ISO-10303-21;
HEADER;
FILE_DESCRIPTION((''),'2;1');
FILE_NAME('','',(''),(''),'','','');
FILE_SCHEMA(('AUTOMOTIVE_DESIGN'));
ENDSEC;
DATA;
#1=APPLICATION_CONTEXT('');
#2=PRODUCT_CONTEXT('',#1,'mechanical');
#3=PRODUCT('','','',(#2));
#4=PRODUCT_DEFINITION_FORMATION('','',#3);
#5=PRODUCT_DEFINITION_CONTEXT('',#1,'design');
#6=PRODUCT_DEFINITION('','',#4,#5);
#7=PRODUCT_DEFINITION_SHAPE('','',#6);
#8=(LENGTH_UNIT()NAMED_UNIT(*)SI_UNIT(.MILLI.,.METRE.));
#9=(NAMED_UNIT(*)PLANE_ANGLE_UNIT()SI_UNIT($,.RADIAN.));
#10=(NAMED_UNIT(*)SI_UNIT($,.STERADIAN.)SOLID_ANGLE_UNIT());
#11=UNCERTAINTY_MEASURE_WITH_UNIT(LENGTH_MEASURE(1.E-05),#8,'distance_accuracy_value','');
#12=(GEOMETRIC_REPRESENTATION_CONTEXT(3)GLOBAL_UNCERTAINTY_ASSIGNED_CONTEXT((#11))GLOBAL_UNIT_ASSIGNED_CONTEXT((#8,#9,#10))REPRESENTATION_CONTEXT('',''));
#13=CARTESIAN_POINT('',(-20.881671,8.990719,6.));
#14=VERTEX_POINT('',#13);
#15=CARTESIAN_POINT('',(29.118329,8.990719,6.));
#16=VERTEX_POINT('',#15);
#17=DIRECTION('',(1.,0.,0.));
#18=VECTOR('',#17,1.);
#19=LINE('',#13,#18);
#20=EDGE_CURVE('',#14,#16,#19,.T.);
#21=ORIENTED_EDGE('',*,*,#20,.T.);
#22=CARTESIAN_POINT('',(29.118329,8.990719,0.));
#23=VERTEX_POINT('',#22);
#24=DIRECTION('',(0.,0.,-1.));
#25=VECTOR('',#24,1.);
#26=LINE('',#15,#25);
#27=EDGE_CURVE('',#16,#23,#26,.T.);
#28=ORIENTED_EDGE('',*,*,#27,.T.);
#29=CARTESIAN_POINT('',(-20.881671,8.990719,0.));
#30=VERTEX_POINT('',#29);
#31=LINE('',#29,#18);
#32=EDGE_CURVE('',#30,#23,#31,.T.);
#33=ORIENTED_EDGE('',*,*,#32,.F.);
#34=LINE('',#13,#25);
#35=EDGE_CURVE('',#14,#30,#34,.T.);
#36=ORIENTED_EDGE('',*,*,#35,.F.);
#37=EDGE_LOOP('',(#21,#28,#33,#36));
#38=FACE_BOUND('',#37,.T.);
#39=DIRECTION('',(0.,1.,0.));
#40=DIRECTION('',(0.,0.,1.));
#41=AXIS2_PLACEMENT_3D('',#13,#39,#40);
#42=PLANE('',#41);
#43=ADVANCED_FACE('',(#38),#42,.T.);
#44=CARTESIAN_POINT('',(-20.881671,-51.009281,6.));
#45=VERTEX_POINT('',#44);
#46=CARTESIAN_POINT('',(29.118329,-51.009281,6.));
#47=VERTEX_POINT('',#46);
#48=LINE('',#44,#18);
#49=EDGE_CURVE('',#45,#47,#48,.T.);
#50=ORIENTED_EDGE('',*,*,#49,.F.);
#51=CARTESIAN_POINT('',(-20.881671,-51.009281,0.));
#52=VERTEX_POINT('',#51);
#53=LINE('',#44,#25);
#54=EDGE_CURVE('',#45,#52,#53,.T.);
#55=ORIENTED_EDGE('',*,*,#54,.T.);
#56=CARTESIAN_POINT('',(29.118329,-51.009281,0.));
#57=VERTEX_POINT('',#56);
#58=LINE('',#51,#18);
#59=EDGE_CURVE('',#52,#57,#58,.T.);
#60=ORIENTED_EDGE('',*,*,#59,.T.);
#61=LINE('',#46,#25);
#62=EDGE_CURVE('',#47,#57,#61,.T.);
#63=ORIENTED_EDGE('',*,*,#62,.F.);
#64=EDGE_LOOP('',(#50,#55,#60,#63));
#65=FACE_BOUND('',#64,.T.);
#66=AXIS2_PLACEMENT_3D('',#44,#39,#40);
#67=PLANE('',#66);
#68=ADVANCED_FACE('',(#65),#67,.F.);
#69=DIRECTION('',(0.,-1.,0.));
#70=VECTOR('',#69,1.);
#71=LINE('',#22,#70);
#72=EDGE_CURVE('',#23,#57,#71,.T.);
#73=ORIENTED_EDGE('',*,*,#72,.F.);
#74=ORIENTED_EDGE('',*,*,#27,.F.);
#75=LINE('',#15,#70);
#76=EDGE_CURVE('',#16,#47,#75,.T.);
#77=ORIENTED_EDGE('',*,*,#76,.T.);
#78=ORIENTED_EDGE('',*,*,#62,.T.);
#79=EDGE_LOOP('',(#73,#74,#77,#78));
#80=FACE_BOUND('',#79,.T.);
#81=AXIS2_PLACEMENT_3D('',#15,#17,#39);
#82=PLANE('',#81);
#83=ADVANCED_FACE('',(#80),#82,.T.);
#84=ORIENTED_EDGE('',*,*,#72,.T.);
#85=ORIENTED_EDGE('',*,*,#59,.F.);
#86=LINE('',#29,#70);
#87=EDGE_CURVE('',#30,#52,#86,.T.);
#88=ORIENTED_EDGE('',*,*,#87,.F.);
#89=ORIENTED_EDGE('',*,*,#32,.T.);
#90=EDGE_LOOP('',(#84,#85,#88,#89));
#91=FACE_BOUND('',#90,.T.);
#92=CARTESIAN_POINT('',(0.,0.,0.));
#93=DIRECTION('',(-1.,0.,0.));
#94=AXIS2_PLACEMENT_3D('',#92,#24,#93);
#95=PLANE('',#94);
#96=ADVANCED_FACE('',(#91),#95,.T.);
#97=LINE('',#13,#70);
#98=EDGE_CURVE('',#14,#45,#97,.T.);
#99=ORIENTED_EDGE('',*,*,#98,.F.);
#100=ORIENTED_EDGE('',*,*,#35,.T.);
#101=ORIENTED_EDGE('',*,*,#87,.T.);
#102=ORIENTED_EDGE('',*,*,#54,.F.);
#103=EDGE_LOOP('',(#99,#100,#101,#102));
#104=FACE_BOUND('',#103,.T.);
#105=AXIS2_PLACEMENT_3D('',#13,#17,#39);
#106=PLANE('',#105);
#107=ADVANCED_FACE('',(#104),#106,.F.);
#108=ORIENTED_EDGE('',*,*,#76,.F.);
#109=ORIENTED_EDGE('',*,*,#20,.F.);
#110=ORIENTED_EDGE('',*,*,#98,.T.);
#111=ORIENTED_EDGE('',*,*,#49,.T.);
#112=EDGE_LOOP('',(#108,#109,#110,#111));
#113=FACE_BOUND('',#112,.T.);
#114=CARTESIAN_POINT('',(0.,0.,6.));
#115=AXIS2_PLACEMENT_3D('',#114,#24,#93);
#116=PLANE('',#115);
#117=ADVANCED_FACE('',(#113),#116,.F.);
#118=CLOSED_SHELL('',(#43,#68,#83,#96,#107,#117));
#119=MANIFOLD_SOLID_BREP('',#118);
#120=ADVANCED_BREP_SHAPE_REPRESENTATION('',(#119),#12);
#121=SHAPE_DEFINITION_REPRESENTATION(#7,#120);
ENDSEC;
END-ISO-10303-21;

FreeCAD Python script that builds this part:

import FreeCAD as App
import Part
import Sketcher
Q = App.Units.Quantity

doc = App.newDocument("Part")
body = doc.addObject("PartDesign::Body", "Body")

sketch1 = body.newObject("Sketcher::SketchObject", "Sketch")
sketch1.AttachmentSupport = (doc.getObject("XY_Plane"), [""])
sketch1.MapMode = "FlatFace"
sketch1.addGeometry([
    Part.LineSegment(App.Vector(-21, 9, 0), App.Vector(-21, -51, 0)),
    Part.LineSegment(App.Vector(-21, -51, 0), App.Vector(29, -51, 0)),
    Part.LineSegment(App.Vector(29, -51, 0), App.Vector(29, 9, 0)),
    Part.LineSegment(App.Vector(29, 9, 0), App.Vector(-21, 9, 0)),
], False)
sketch1.addConstraint([
    Sketcher.Constraint("Coincident", 0, 2, 1, 1),
    Sketcher.Constraint("Coincident", 1, 2, 2, 1),
    Sketcher.Constraint("Coincident", 2, 2, 3, 1),
    Sketcher.Constraint("Coincident", 3, 2, 0, 1),
    Sketcher.Constraint("Vertical", 0),
    Sketcher.Constraint("Horizontal", 1),
    Sketcher.Constraint("Vertical", 2),
    Sketcher.Constraint("Horizontal", 3),
    Sketcher.Constraint("DistanceX", 1, 1, 1, 2, Q("50 mm")),
    Sketcher.Constraint("DistanceY", 0, 2, 0, 1, Q("60 mm")),
    Sketcher.Constraint("DistanceX", 0, 2, -1, 1, Q("20.881671 mm")),
    Sketcher.Constraint("DistanceY", 0, 2, -1, 1, Q("51.009281 mm")),
])
pad1 = body.newObject("PartDesign::Pad", "Pad")
pad1.Profile = sketch1
pad1.Length = 6

doc.recompute()
